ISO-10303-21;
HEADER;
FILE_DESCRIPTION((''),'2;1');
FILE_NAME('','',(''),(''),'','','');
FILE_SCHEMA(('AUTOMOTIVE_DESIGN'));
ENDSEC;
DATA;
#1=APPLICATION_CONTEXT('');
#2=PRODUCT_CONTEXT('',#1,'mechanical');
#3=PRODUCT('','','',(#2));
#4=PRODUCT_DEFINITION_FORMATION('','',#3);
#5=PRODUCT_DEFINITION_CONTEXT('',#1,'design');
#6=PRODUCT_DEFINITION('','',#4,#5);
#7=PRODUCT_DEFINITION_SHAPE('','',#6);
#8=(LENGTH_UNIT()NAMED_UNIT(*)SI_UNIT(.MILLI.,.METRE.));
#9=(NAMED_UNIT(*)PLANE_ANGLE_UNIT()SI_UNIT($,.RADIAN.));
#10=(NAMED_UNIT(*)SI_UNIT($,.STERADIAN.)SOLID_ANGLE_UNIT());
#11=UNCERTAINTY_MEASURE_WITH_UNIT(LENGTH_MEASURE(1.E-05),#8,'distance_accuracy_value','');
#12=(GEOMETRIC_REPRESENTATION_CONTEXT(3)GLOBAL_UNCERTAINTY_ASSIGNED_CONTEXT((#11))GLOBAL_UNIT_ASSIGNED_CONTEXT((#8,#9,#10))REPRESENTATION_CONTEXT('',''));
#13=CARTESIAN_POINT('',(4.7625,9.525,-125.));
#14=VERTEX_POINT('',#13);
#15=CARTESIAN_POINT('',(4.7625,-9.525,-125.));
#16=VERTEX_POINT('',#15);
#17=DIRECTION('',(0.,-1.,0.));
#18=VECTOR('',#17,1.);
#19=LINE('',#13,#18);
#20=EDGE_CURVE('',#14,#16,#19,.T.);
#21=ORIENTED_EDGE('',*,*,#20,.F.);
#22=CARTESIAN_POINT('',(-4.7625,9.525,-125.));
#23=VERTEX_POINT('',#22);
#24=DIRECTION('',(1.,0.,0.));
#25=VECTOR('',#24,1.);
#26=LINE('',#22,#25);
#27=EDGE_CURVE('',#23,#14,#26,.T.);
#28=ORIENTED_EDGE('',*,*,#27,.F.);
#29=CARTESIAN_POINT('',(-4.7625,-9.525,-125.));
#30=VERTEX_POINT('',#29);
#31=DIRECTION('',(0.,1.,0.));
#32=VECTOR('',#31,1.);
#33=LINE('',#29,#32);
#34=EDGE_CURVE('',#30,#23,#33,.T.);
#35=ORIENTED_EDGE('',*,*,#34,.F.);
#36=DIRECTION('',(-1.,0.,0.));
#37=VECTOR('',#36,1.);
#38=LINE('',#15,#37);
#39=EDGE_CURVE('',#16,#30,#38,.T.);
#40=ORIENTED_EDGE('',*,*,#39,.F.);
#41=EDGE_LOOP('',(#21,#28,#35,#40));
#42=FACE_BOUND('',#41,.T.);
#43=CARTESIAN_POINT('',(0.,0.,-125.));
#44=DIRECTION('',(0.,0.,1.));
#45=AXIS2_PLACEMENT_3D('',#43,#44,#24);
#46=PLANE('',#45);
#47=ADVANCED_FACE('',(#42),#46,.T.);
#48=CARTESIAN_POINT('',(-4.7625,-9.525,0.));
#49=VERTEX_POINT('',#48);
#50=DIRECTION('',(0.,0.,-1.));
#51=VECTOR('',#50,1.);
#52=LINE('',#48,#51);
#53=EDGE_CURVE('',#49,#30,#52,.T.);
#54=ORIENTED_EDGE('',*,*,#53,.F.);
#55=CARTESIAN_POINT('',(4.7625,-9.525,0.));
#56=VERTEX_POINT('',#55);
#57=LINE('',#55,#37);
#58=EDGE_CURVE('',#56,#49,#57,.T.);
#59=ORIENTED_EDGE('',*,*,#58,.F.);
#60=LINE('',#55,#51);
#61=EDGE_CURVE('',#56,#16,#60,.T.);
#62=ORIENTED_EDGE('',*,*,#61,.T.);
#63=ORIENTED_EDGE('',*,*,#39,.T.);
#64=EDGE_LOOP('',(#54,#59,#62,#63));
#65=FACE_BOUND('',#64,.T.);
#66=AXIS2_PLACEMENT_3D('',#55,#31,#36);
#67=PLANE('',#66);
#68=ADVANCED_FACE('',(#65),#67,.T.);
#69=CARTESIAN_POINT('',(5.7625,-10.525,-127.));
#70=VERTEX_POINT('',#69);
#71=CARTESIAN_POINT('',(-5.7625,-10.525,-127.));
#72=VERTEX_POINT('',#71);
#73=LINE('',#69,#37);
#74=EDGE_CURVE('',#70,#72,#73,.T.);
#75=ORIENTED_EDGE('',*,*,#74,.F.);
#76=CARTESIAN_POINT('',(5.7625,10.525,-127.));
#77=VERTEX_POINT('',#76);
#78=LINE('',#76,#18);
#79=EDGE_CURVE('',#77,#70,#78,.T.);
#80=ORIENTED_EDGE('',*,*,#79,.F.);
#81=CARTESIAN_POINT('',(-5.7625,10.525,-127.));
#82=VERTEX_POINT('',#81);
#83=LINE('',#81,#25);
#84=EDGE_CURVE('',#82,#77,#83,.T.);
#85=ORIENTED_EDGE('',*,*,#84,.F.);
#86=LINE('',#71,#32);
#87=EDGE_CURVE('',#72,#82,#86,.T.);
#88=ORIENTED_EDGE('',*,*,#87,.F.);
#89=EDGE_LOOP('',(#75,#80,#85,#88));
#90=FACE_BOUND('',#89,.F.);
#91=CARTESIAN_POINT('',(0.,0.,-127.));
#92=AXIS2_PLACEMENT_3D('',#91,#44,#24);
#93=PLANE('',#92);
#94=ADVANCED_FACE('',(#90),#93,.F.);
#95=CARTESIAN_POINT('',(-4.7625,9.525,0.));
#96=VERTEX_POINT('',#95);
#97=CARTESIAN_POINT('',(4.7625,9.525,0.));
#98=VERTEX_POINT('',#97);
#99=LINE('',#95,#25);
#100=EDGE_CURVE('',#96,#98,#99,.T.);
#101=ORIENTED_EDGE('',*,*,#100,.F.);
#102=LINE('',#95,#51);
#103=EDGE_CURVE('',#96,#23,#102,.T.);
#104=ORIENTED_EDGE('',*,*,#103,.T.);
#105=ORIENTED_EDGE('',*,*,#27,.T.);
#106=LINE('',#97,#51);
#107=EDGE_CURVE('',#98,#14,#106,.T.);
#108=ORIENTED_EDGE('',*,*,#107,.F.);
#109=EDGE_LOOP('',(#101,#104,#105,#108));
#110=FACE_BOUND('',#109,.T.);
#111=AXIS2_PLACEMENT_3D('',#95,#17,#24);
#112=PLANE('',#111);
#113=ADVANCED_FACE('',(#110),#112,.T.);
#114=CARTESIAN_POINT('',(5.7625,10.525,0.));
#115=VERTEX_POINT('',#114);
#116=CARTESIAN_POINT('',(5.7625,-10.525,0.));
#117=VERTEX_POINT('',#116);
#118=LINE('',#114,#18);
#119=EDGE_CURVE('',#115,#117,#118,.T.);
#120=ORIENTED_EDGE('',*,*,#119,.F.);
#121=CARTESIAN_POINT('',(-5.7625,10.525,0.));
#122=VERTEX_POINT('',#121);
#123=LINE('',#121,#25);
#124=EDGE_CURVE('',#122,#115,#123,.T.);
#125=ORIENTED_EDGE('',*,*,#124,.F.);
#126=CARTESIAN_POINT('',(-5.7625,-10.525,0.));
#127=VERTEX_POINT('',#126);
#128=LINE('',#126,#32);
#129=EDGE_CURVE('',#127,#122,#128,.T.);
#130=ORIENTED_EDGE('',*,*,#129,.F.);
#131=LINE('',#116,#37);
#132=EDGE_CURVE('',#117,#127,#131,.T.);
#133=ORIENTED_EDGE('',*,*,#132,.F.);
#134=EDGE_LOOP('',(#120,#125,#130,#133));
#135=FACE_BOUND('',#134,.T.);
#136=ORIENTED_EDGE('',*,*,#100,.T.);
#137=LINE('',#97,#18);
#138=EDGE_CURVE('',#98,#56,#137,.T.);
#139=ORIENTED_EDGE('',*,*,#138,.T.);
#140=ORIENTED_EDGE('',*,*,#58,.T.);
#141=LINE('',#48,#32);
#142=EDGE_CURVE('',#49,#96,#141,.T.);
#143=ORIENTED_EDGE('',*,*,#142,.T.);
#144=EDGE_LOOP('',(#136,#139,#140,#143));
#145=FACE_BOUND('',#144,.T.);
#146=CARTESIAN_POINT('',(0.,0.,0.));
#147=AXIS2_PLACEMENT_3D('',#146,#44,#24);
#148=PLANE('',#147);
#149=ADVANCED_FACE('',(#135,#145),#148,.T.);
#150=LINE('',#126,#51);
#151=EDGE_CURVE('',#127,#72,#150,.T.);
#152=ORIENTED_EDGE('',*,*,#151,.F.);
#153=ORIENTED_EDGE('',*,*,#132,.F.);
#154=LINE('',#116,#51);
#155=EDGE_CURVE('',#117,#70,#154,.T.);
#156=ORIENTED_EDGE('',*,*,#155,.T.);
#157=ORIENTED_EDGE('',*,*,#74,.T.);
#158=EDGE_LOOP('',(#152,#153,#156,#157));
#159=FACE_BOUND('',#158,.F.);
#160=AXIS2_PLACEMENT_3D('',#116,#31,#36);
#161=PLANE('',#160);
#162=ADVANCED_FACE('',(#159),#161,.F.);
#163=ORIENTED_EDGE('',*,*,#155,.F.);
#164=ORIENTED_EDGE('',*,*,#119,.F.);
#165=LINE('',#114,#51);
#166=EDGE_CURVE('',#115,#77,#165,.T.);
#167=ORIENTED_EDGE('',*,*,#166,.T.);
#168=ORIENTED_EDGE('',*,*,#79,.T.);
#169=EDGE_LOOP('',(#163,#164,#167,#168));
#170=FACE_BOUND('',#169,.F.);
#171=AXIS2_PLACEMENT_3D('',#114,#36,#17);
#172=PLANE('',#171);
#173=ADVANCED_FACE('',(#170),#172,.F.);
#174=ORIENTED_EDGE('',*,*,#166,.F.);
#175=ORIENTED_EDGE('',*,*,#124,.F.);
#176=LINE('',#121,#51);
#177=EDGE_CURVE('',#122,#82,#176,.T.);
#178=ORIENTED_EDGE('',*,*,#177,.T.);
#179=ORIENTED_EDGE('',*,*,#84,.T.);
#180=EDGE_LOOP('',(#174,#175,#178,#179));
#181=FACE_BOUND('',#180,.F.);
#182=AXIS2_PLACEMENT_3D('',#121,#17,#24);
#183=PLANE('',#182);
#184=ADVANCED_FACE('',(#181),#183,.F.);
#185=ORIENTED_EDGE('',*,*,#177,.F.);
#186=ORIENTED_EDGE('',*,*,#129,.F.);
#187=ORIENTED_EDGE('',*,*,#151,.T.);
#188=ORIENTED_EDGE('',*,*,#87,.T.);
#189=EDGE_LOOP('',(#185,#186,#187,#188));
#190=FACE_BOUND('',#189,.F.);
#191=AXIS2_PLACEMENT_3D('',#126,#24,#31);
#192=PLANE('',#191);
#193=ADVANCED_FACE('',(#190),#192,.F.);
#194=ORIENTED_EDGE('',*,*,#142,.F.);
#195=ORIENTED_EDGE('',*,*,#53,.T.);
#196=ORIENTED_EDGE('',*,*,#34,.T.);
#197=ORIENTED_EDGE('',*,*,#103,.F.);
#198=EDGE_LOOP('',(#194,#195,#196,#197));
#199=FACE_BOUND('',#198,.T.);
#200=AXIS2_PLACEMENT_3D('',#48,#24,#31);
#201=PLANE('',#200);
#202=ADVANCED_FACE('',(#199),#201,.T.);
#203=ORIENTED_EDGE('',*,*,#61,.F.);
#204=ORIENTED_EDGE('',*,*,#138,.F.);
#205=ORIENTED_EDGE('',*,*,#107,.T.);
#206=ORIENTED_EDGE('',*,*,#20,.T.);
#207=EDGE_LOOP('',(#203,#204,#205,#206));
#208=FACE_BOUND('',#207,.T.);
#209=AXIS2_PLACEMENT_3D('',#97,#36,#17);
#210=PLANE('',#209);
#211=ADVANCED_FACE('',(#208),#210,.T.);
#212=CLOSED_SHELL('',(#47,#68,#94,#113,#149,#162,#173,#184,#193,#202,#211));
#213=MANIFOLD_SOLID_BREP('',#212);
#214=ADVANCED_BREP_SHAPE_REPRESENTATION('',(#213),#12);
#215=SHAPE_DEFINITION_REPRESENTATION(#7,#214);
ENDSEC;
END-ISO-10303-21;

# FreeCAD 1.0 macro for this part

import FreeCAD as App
import Part
import Sketcher

V = App.Vector
Q = App.Units.Quantity

doc = App.newDocument("Part")
body = doc.addObject("PartDesign::Body", "Body")

# Sketch on XY plane
sketch1 = doc.addObject("Sketcher::SketchObject", "Sketch")
body.addObject(sketch1)
sketch1.AttachmentSupport = (doc.XY_Plane, [""])
sketch1.MapMode = "FlatFace"
sketch1.addGeometry(Part.LineSegment(V(-5.7625, -10.525, 0), V(5.7625, -10.525, 0)), False)
sketch1.addGeometry(Part.LineSegment(V(5.7625, -10.525, 0), V(5.7625, 10.525, 0)), False)
sketch1.addGeometry(Part.LineSegment(V(5.7625, 10.525, 0), V(-5.7625, 10.525, 0)), False)
sketch1.addGeometry(Part.LineSegment(V(-5.7625, 10.525, 0), V(-5.7625, -10.525, 0)), False)
sketch1.addConstraint(Sketcher.Constraint("Coincident", 0, 2, 1, 1))
sketch1.addConstraint(Sketcher.Constraint("Coincident", 1, 2, 2, 1))
sketch1.addConstraint(Sketcher.Constraint("Coincident", 2, 2, 3, 1))
sketch1.addConstraint(Sketcher.Constraint("Coincident", 3, 2, 0, 1))
sketch1.addConstraint(Sketcher.Constraint("Horizontal", 0))
sketch1.addConstraint(Sketcher.Constraint("Vertical", 1))
sketch1.addConstraint(Sketcher.Constraint("Horizontal", 2))
sketch1.addConstraint(Sketcher.Constraint("Vertical", 3))
sketch1.addConstraint(Sketcher.Constraint("Symmetric", 0, 2, 2, 2, -1, 1))
sketch1.addConstraint(Sketcher.Constraint("DistanceX", 0, 1, 0, 2, Q("11.525 mm")))
sketch1.addConstraint(Sketcher.Constraint("DistanceY", 1, 1, 1, 2, Q("21.05 mm")))
pad1 = doc.addObject("PartDesign::Pad", "Pad")
body.addObject(pad1)
pad1.Profile = sketch1
pad1.Length = Q("5 in")
pad1.Reversed = True

# Sketch on XY plane
sketch2 = doc.addObject("Sketcher::SketchObject", "Sketch001")
body.addObject(sketch2)
sketch2.AttachmentSupport = (doc.XY_Plane, [""])
sketch2.MapMode = "FlatFace"
sketch2.addGeometry(Part.LineSegment(V(4.7625, 9.525, 0), V(-4.7625, 9.525, 0)), False)
sketch2.addGeometry(Part.LineSegment(V(-4.7625, 9.525, 0), V(-4.7625, -9.525, 0)), False)
sketch2.addGeometry(Part.LineSegment(V(-4.7625, -9.525, 0), V(4.7625, -9.525, 0)), False)
sketch2.addGeometry(Part.LineSegment(V(4.7625, -9.525, 0), V(4.7625, 9.525, 0)), False)
sketch2.addConstraint(Sketcher.Constraint("Coincident", 0, 2, 1, 1))
sketch2.addConstraint(Sketcher.Constraint("Coincident", 1, 2, 2, 1))
sketch2.addConstraint(Sketcher.Constraint("Coincident", 2, 2, 3, 1))
sketch2.addConstraint(Sketcher.Constraint("Coincident", 3, 2, 0, 1))
sketch2.addConstraint(Sketcher.Constraint("Horizontal", 0))
sketch2.addConstraint(Sketcher.Constraint("Vertical", 1))
sketch2.addConstraint(Sketcher.Constraint("Horizontal", 2))
sketch2.addConstraint(Sketcher.Constraint("Vertical", 3))
sketch2.addConstraint(Sketcher.Constraint("Symmetric", 0, 2, 2, 2, -1, 1))
sketch2.addConstraint(Sketcher.Constraint("DistanceY", 1, 2, 1, 1, Q("0.75 in")))
sketch2.addConstraint(Sketcher.Constraint("DistanceX", 0, 2, 0, 1, Q("0.375 in")))
pocket1 = doc.addObject("PartDesign::Pocket", "Pocket")
body.addObject(pocket1)
pocket1.Profile = sketch2
pocket1.Length = 125

doc.recompute()
